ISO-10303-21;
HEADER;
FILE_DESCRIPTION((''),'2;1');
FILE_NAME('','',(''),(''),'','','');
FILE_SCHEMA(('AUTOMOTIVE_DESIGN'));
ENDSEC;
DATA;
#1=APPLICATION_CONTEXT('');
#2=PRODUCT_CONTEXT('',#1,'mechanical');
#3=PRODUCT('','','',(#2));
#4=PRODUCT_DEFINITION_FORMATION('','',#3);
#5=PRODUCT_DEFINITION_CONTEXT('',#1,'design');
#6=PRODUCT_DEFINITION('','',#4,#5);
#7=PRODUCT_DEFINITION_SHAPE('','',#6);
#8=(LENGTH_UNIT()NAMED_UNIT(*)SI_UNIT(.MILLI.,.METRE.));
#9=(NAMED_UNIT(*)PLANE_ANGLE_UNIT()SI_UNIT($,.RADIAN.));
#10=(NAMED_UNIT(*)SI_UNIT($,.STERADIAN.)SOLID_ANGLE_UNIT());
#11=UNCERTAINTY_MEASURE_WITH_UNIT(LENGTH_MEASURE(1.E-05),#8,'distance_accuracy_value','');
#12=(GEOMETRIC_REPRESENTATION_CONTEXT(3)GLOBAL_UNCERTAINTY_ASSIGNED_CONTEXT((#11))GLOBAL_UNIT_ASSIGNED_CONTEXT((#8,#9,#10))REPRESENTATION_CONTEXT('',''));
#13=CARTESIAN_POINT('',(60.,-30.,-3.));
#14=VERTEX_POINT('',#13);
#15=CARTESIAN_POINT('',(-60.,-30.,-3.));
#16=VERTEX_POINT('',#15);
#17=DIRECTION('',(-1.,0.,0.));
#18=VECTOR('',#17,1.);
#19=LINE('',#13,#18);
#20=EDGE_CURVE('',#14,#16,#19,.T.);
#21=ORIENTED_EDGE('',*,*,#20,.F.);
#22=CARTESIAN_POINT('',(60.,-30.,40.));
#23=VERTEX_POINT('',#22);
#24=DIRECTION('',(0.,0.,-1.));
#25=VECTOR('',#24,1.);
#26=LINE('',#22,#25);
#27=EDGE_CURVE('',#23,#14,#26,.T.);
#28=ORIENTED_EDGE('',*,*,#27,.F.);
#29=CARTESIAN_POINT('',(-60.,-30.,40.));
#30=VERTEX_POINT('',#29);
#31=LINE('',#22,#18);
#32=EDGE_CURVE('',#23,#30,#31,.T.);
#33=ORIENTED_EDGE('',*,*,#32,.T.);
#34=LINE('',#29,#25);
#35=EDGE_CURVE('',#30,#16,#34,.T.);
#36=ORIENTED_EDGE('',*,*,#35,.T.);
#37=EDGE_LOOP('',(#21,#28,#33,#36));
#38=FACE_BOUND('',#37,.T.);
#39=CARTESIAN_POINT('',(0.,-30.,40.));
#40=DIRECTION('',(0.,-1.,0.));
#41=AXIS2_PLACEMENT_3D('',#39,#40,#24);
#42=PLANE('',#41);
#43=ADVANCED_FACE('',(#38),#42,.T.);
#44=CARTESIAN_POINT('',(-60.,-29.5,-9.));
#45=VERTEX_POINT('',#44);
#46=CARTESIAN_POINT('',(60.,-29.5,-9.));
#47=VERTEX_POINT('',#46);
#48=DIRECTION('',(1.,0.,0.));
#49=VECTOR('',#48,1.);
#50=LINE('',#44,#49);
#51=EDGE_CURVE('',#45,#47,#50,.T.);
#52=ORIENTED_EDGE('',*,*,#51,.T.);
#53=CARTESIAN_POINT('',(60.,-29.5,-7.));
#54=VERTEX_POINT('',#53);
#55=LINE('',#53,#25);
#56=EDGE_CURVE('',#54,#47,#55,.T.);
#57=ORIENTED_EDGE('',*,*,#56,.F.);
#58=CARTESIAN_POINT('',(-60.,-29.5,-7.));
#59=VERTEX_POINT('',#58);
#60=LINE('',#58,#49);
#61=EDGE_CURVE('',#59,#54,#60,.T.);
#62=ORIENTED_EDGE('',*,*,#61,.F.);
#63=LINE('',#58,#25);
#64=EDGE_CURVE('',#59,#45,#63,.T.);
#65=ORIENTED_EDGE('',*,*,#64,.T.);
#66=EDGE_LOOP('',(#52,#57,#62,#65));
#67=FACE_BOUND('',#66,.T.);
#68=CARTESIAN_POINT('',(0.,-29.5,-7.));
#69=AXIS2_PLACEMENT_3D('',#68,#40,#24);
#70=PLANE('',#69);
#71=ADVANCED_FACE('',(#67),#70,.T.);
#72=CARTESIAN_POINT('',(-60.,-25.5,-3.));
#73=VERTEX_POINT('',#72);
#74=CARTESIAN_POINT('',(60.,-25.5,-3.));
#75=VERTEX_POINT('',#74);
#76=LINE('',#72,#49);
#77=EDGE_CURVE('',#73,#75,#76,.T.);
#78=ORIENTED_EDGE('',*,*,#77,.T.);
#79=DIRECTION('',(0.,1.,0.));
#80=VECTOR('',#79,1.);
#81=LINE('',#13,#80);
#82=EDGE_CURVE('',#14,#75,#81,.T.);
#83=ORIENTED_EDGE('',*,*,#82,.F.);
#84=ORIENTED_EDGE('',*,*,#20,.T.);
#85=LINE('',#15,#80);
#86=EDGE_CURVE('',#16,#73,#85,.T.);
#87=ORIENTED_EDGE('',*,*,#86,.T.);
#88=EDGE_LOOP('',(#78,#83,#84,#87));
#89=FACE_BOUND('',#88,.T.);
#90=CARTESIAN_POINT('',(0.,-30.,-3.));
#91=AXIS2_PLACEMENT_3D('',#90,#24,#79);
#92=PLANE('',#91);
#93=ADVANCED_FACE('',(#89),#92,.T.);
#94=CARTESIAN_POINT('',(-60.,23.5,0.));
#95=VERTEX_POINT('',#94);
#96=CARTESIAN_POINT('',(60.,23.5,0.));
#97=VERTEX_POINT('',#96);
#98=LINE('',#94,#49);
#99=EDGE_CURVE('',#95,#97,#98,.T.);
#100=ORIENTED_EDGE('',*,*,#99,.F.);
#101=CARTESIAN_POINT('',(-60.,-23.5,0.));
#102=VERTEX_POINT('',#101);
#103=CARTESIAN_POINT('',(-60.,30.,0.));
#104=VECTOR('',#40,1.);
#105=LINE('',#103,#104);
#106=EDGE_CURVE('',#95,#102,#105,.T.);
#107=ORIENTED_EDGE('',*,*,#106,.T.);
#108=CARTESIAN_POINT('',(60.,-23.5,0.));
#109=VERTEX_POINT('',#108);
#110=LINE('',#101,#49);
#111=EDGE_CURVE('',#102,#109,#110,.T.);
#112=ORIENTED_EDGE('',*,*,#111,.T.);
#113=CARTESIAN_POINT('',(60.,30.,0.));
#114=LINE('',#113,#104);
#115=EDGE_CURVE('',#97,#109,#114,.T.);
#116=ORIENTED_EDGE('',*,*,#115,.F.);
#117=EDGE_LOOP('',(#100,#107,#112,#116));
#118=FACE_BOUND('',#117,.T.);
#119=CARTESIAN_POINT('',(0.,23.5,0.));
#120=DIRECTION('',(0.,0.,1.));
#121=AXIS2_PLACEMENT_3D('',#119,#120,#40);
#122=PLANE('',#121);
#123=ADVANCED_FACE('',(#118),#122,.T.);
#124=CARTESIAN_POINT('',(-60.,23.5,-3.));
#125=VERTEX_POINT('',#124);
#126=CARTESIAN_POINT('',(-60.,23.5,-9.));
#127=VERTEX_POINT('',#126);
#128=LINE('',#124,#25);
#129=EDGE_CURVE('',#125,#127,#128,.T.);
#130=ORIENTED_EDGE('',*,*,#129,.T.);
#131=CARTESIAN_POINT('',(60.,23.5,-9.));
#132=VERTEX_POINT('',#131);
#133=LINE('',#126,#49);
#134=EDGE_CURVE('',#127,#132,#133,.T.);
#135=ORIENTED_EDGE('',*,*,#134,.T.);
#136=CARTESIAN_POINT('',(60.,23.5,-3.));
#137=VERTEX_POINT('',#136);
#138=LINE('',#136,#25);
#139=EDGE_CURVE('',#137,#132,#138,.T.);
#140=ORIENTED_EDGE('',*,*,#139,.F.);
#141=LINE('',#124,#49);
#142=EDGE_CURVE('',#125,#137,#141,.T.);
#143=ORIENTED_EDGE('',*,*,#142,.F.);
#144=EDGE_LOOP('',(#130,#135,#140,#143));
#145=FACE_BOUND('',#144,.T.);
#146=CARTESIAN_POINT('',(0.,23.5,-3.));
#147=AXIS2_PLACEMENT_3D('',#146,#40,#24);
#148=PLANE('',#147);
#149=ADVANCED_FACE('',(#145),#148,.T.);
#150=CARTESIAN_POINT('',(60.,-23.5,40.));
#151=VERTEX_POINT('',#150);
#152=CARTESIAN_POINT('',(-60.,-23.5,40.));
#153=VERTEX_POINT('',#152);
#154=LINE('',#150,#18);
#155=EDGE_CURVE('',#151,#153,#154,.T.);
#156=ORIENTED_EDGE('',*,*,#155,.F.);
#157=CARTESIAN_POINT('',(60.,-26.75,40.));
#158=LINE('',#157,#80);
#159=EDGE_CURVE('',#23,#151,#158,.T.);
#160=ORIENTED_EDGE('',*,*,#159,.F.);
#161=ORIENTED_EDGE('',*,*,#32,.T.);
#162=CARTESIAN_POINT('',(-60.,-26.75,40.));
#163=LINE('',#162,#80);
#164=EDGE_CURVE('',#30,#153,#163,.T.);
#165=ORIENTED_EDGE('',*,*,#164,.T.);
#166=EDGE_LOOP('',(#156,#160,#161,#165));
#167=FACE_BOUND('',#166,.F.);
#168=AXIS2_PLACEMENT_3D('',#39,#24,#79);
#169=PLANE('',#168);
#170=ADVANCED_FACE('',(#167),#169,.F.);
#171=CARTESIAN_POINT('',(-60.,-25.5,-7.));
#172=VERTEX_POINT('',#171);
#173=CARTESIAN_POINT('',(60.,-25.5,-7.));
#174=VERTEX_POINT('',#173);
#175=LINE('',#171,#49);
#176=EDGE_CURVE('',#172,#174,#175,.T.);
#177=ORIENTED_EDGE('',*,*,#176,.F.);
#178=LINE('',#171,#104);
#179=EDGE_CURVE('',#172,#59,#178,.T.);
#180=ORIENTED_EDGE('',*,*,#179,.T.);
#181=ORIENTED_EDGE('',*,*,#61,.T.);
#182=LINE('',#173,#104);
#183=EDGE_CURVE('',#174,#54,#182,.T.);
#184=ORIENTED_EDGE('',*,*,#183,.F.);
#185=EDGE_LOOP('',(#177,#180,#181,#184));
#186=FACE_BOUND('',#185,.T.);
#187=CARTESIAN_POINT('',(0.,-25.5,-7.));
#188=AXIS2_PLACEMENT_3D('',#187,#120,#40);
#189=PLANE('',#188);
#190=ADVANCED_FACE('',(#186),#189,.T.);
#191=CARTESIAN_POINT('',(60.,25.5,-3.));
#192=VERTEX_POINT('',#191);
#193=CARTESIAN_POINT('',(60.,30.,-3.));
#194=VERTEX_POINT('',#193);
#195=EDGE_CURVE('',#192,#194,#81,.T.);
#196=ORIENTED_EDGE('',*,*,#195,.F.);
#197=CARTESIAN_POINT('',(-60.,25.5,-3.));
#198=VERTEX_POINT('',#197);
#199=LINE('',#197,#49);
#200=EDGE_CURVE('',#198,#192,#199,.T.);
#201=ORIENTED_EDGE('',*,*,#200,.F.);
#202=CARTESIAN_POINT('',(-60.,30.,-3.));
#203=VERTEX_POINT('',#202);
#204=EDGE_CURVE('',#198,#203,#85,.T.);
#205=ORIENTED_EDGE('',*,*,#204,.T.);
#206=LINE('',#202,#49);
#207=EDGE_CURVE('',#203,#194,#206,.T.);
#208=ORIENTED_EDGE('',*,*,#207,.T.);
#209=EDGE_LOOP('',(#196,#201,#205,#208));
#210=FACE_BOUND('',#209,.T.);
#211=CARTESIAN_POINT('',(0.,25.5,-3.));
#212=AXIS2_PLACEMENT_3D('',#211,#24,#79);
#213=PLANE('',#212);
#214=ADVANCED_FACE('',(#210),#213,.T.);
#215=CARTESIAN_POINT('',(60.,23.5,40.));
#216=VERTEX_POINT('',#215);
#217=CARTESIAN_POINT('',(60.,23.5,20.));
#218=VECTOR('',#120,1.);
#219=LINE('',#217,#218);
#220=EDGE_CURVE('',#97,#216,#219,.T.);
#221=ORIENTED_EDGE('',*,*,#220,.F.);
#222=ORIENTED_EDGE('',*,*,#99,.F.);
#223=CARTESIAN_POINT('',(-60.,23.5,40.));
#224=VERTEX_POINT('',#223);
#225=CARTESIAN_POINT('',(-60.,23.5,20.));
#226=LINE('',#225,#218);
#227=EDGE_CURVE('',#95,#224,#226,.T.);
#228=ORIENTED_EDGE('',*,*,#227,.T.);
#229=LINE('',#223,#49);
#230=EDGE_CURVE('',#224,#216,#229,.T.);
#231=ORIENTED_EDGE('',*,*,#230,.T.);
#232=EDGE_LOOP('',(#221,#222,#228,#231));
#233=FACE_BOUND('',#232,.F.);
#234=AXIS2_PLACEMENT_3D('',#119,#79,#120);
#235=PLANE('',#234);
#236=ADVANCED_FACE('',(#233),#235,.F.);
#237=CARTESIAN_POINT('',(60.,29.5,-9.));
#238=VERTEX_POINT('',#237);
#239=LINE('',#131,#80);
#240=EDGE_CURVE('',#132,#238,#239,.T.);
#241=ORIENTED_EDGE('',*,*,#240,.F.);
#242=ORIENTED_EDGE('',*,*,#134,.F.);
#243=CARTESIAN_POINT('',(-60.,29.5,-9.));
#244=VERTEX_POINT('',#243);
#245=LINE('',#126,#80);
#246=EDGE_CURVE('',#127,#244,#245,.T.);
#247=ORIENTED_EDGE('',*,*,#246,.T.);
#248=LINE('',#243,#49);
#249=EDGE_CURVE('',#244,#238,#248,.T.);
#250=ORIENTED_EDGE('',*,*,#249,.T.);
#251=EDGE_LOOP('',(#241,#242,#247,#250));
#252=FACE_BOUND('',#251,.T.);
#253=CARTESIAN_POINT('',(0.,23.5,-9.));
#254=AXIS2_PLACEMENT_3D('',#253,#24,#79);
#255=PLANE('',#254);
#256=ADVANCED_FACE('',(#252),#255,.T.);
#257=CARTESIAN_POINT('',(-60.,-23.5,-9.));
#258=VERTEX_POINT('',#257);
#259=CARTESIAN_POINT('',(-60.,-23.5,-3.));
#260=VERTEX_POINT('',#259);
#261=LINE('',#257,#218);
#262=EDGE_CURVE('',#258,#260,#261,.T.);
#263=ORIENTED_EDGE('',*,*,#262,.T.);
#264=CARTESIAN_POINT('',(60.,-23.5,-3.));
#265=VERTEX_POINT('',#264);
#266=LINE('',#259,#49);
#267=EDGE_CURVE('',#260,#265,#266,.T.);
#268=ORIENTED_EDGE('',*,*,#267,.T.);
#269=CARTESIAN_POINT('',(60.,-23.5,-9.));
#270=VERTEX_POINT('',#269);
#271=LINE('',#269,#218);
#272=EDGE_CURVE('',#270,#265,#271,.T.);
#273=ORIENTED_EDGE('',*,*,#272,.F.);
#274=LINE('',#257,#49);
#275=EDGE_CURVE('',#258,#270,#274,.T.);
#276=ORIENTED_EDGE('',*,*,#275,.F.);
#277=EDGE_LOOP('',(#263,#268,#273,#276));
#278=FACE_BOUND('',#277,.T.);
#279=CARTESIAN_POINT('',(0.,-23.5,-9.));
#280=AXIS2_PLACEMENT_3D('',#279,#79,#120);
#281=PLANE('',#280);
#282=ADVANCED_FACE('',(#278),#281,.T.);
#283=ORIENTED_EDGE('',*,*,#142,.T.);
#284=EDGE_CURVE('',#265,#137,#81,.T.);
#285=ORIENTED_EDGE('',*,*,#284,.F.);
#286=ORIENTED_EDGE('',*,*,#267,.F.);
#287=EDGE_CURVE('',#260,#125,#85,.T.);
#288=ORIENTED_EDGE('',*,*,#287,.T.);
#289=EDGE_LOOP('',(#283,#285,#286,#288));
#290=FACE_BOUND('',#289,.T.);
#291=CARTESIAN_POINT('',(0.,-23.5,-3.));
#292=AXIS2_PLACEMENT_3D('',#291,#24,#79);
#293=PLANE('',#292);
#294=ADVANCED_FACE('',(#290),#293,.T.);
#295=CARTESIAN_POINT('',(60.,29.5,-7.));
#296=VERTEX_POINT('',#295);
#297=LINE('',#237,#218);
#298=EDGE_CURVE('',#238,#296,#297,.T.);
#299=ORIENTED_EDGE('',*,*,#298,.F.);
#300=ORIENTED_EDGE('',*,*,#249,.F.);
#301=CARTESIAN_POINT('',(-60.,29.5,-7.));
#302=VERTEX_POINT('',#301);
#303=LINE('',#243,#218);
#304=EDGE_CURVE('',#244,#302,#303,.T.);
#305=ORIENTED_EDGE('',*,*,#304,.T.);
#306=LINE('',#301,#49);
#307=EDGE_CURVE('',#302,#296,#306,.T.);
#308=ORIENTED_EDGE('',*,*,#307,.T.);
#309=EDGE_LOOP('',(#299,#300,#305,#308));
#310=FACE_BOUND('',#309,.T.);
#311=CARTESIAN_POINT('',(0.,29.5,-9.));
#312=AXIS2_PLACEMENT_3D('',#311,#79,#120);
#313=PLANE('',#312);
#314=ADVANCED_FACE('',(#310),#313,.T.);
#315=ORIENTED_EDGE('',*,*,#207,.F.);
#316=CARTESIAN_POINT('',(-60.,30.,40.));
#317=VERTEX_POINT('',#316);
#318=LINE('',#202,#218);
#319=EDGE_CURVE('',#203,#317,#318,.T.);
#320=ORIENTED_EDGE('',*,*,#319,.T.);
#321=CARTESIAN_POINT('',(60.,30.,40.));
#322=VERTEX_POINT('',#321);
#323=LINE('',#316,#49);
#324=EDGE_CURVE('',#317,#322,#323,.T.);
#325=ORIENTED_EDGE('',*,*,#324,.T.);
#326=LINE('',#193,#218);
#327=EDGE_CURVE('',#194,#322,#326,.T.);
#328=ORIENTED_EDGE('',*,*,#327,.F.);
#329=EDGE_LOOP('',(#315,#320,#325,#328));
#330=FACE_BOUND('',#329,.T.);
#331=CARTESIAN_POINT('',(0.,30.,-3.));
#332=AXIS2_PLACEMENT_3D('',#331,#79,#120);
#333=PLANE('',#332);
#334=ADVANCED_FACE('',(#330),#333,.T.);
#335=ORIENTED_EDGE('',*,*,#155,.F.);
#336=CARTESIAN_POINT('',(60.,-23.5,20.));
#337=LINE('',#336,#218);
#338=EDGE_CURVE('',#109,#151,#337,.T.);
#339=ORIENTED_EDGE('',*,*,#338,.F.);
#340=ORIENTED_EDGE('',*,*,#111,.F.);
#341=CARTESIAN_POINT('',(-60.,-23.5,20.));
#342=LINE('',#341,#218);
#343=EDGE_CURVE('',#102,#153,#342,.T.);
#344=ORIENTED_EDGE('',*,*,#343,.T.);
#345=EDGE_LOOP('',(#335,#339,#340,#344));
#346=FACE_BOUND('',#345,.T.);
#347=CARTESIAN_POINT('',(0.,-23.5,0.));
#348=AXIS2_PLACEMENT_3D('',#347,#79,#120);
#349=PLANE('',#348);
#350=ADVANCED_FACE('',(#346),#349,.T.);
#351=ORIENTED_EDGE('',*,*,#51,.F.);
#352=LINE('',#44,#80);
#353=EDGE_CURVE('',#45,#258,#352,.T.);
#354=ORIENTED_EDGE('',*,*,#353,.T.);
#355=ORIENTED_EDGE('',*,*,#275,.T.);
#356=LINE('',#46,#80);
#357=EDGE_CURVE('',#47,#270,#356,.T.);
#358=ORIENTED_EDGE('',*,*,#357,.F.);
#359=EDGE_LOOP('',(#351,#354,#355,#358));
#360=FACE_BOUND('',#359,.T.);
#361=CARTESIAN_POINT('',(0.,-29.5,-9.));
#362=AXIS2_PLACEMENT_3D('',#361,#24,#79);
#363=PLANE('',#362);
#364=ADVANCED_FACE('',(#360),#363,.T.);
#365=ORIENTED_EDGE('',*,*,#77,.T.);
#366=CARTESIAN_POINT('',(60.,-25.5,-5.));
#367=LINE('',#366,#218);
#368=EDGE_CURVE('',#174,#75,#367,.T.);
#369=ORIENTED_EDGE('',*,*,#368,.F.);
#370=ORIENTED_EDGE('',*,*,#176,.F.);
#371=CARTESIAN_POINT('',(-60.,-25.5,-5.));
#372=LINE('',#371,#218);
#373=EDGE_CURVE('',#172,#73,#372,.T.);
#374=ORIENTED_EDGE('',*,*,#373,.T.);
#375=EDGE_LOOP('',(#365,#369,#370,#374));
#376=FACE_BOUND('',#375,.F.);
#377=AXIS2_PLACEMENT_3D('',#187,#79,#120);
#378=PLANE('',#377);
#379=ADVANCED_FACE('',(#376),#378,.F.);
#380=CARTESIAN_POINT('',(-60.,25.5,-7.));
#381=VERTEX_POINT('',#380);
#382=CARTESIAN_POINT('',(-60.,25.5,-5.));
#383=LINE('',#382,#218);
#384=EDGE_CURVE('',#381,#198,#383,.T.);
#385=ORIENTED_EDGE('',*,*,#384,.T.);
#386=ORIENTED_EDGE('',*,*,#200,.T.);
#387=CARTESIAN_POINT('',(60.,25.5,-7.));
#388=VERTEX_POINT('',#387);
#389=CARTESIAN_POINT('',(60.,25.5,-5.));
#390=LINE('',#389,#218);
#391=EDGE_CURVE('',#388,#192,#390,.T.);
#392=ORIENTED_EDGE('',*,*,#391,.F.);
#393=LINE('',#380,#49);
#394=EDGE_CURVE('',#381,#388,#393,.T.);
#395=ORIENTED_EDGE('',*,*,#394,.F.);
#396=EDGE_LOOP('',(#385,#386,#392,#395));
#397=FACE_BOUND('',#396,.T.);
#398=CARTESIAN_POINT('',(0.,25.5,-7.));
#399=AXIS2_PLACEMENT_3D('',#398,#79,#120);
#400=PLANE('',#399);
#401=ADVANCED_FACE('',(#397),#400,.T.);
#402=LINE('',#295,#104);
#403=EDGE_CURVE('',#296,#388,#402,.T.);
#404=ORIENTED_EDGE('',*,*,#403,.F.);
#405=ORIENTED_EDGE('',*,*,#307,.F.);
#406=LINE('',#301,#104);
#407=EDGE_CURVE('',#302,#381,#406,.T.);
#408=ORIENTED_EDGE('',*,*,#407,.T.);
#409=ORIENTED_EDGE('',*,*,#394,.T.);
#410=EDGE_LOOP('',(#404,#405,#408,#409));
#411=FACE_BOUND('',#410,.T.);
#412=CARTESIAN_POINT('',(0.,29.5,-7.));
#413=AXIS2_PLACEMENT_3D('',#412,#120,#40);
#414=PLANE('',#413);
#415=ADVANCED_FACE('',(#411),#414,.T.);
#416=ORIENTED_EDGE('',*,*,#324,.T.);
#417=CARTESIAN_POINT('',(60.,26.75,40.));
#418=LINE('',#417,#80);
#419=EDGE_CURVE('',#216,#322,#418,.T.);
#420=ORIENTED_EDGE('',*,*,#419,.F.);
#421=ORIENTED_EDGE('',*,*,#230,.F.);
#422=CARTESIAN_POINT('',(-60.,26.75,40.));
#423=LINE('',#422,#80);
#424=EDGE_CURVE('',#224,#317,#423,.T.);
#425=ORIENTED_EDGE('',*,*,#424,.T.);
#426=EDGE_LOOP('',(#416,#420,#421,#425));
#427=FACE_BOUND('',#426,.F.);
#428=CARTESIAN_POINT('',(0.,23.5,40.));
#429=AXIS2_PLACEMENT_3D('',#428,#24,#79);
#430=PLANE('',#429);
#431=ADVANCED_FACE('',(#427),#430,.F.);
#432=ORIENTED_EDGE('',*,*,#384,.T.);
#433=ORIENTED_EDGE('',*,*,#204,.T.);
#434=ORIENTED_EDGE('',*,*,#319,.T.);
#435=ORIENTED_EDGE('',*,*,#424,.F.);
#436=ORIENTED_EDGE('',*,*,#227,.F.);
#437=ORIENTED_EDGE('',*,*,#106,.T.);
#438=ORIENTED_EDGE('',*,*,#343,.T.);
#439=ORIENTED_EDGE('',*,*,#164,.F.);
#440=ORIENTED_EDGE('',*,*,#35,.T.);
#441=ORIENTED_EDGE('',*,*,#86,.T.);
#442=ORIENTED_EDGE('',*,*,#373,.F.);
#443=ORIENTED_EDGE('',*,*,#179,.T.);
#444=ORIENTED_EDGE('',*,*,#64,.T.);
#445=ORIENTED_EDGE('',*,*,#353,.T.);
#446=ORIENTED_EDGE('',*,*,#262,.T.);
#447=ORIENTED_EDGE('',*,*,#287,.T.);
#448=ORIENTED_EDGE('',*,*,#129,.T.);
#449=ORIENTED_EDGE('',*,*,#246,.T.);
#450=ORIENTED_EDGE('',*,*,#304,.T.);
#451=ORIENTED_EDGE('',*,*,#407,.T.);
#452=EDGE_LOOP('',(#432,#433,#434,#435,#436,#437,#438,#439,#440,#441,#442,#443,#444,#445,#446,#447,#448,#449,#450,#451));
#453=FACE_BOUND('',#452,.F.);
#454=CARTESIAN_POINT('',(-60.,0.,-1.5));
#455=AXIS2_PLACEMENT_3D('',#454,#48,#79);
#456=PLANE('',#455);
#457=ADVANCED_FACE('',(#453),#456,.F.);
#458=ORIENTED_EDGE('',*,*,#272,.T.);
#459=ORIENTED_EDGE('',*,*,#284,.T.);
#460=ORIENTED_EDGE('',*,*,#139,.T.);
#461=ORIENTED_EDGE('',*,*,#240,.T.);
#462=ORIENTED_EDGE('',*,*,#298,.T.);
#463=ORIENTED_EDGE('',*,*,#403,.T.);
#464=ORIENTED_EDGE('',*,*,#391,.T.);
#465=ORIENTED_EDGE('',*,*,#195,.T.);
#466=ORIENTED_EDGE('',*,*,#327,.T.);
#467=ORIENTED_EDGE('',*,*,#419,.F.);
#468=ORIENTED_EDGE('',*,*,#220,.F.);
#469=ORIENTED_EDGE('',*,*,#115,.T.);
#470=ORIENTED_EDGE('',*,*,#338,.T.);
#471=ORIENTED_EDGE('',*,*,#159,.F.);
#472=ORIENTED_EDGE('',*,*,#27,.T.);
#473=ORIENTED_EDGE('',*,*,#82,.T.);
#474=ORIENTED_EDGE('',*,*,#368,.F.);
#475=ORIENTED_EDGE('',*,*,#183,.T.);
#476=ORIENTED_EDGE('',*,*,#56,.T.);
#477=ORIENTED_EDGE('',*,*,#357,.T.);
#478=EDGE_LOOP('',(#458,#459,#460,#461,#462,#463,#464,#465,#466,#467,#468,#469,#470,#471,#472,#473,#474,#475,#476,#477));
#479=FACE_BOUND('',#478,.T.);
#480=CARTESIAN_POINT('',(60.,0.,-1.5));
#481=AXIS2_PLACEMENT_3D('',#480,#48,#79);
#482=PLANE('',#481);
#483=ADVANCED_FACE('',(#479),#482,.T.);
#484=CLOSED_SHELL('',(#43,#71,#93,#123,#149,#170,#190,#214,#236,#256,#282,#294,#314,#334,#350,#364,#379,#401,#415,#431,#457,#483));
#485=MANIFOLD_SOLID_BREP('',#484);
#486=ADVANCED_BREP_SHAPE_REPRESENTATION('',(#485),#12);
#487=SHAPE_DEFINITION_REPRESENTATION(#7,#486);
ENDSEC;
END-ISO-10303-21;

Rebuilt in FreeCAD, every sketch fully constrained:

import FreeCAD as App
import Part
import Sketcher
from FreeCAD import Vector
Q = App.Units.Quantity


def add_polygon(sketch, points):
    """Adds a closed chain of lines whose ends are joined by coincident constraints."""
    first, n = sketch.GeometryCount, len(points)
    for a, b in zip(points, points[1:] + points[:1]):
        sketch.addGeometry(Part.LineSegment(App.Vector(*a, 0), App.Vector(*b, 0)), False)
    for i in range(n):
        sketch.addConstraint(Sketcher.Constraint("Coincident", first + i, 2, first + (i + 1) % n, 1))

doc = App.newDocument("Part")
body = doc.addObject("PartDesign::Body", "Body")

sketch1 = body.newObject("Sketcher::SketchObject", "Sketch")
sketch1.AttachmentSupport = (doc.getObject("YZ_Plane"), [""])
sketch1.MapMode = "FlatFace"
add_polygon(sketch1, [(-30, -3), (-25.5, -3), (-25.5, -7), (-29.5, -7), (-29.5, -9), (-23.5, -9), (-23.5, -3), (23.5, -3), (23.5, -9), (29.5, -9), (29.5, -7), (25.5, -7), (25.5, -3), (30, -3), (30, 40), (23.5, 40), (23.5, 0), (-23.5, 0), (-23.5, 40), (-30, 40)])
sketch1.addConstraint(Sketcher.Constraint("Horizontal", 0))
sketch1.addConstraint(Sketcher.Constraint("Vertical", 1))
sketch1.addConstraint(Sketcher.Constraint("Horizontal", 2))
sketch1.addConstraint(Sketcher.Constraint("Vertical", 3))
sketch1.addConstraint(Sketcher.Constraint("Horizontal", 4))
sketch1.addConstraint(Sketcher.Constraint("Vertical", 5))
sketch1.addConstraint(Sketcher.Constraint("Horizontal", 6))
sketch1.addConstraint(Sketcher.Constraint("Vertical", 7))
sketch1.addConstraint(Sketcher.Constraint("Horizontal", 8))
sketch1.addConstraint(Sketcher.Constraint("Vertical", 9))
sketch1.addConstraint(Sketcher.Constraint("Horizontal", 10))
sketch1.addConstraint(Sketcher.Constraint("Vertical", 11))
sketch1.addConstraint(Sketcher.Constraint("Horizontal", 12))
sketch1.addConstraint(Sketcher.Constraint("Vertical", 13))
sketch1.addConstraint(Sketcher.Constraint("Horizontal", 14))
sketch1.addConstraint(Sketcher.Constraint("Vertical", 15))
sketch1.addConstraint(Sketcher.Constraint("Horizontal", 16))
sketch1.addConstraint(Sketcher.Constraint("Vertical", 17))
sketch1.addConstraint(Sketcher.Constraint("Horizontal", 18))
sketch1.addConstraint(Sketcher.Constraint("Vertical", 19))
sketch1.addConstraint(Sketcher.Constraint("Symmetric", 15, 2, 16, 2, -1, 1))
sketch1.addConstraint(Sketcher.Constraint("Symmetric", 4, 2, 7, 2, -2))
sketch1.addConstraint(Sketcher.Constraint("Symmetric", 2, 2, 9, 2, -2))
sketch1.addConstraint(Sketcher.Constraint("Symmetric", 0, 2, 11, 2, -2))
sketch1.addConstraint(Sketcher.Constraint("Symmetric", 13, 2, 18, 2, -2))
sketch1.addConstraint(Sketcher.Constraint("Horizontal", 0, 2, 5, 2))
sketch1.addConstraint(Sketcher.Constraint("Vertical", 7, 2, 14, 2))
sketch1.addConstraint(Sketcher.Constraint("Equal", 10, 1))
sketch1.addConstraint(Sketcher.Constraint("Equal", 8, 5))
sketch1.addConstraint(Sketcher.Constraint("DistanceX", 2, 2, 2, 1, Q("4 mm")))
sketch1.addConstraint(Sketcher.Constraint("DistanceX", 4, 1, 4, 2, Q("6 mm")))
sketch1.addConstraint(Sketcher.Constraint("DistanceX", 6, 1, 6, 2, Q("47 mm")))
sketch1.addConstraint(Sketcher.Constraint("DistanceY", 13, 1, 13, 2, Q("43 mm")))
sketch1.addConstraint(Sketcher.Constraint("DistanceY", 15, 2, 15, 1, Q("40 mm")))
sketch1.addConstraint(Sketcher.Constraint("DistanceX", 0, 1, 0, 2, Q("4.5 mm")))
pad1 = body.newObject("PartDesign::Pad", "Pad")
pad1.Profile = sketch1
pad1.Type = "TwoLengths"
pad1.Length = 60
pad1.Length2 = 60

doc.recompute()
